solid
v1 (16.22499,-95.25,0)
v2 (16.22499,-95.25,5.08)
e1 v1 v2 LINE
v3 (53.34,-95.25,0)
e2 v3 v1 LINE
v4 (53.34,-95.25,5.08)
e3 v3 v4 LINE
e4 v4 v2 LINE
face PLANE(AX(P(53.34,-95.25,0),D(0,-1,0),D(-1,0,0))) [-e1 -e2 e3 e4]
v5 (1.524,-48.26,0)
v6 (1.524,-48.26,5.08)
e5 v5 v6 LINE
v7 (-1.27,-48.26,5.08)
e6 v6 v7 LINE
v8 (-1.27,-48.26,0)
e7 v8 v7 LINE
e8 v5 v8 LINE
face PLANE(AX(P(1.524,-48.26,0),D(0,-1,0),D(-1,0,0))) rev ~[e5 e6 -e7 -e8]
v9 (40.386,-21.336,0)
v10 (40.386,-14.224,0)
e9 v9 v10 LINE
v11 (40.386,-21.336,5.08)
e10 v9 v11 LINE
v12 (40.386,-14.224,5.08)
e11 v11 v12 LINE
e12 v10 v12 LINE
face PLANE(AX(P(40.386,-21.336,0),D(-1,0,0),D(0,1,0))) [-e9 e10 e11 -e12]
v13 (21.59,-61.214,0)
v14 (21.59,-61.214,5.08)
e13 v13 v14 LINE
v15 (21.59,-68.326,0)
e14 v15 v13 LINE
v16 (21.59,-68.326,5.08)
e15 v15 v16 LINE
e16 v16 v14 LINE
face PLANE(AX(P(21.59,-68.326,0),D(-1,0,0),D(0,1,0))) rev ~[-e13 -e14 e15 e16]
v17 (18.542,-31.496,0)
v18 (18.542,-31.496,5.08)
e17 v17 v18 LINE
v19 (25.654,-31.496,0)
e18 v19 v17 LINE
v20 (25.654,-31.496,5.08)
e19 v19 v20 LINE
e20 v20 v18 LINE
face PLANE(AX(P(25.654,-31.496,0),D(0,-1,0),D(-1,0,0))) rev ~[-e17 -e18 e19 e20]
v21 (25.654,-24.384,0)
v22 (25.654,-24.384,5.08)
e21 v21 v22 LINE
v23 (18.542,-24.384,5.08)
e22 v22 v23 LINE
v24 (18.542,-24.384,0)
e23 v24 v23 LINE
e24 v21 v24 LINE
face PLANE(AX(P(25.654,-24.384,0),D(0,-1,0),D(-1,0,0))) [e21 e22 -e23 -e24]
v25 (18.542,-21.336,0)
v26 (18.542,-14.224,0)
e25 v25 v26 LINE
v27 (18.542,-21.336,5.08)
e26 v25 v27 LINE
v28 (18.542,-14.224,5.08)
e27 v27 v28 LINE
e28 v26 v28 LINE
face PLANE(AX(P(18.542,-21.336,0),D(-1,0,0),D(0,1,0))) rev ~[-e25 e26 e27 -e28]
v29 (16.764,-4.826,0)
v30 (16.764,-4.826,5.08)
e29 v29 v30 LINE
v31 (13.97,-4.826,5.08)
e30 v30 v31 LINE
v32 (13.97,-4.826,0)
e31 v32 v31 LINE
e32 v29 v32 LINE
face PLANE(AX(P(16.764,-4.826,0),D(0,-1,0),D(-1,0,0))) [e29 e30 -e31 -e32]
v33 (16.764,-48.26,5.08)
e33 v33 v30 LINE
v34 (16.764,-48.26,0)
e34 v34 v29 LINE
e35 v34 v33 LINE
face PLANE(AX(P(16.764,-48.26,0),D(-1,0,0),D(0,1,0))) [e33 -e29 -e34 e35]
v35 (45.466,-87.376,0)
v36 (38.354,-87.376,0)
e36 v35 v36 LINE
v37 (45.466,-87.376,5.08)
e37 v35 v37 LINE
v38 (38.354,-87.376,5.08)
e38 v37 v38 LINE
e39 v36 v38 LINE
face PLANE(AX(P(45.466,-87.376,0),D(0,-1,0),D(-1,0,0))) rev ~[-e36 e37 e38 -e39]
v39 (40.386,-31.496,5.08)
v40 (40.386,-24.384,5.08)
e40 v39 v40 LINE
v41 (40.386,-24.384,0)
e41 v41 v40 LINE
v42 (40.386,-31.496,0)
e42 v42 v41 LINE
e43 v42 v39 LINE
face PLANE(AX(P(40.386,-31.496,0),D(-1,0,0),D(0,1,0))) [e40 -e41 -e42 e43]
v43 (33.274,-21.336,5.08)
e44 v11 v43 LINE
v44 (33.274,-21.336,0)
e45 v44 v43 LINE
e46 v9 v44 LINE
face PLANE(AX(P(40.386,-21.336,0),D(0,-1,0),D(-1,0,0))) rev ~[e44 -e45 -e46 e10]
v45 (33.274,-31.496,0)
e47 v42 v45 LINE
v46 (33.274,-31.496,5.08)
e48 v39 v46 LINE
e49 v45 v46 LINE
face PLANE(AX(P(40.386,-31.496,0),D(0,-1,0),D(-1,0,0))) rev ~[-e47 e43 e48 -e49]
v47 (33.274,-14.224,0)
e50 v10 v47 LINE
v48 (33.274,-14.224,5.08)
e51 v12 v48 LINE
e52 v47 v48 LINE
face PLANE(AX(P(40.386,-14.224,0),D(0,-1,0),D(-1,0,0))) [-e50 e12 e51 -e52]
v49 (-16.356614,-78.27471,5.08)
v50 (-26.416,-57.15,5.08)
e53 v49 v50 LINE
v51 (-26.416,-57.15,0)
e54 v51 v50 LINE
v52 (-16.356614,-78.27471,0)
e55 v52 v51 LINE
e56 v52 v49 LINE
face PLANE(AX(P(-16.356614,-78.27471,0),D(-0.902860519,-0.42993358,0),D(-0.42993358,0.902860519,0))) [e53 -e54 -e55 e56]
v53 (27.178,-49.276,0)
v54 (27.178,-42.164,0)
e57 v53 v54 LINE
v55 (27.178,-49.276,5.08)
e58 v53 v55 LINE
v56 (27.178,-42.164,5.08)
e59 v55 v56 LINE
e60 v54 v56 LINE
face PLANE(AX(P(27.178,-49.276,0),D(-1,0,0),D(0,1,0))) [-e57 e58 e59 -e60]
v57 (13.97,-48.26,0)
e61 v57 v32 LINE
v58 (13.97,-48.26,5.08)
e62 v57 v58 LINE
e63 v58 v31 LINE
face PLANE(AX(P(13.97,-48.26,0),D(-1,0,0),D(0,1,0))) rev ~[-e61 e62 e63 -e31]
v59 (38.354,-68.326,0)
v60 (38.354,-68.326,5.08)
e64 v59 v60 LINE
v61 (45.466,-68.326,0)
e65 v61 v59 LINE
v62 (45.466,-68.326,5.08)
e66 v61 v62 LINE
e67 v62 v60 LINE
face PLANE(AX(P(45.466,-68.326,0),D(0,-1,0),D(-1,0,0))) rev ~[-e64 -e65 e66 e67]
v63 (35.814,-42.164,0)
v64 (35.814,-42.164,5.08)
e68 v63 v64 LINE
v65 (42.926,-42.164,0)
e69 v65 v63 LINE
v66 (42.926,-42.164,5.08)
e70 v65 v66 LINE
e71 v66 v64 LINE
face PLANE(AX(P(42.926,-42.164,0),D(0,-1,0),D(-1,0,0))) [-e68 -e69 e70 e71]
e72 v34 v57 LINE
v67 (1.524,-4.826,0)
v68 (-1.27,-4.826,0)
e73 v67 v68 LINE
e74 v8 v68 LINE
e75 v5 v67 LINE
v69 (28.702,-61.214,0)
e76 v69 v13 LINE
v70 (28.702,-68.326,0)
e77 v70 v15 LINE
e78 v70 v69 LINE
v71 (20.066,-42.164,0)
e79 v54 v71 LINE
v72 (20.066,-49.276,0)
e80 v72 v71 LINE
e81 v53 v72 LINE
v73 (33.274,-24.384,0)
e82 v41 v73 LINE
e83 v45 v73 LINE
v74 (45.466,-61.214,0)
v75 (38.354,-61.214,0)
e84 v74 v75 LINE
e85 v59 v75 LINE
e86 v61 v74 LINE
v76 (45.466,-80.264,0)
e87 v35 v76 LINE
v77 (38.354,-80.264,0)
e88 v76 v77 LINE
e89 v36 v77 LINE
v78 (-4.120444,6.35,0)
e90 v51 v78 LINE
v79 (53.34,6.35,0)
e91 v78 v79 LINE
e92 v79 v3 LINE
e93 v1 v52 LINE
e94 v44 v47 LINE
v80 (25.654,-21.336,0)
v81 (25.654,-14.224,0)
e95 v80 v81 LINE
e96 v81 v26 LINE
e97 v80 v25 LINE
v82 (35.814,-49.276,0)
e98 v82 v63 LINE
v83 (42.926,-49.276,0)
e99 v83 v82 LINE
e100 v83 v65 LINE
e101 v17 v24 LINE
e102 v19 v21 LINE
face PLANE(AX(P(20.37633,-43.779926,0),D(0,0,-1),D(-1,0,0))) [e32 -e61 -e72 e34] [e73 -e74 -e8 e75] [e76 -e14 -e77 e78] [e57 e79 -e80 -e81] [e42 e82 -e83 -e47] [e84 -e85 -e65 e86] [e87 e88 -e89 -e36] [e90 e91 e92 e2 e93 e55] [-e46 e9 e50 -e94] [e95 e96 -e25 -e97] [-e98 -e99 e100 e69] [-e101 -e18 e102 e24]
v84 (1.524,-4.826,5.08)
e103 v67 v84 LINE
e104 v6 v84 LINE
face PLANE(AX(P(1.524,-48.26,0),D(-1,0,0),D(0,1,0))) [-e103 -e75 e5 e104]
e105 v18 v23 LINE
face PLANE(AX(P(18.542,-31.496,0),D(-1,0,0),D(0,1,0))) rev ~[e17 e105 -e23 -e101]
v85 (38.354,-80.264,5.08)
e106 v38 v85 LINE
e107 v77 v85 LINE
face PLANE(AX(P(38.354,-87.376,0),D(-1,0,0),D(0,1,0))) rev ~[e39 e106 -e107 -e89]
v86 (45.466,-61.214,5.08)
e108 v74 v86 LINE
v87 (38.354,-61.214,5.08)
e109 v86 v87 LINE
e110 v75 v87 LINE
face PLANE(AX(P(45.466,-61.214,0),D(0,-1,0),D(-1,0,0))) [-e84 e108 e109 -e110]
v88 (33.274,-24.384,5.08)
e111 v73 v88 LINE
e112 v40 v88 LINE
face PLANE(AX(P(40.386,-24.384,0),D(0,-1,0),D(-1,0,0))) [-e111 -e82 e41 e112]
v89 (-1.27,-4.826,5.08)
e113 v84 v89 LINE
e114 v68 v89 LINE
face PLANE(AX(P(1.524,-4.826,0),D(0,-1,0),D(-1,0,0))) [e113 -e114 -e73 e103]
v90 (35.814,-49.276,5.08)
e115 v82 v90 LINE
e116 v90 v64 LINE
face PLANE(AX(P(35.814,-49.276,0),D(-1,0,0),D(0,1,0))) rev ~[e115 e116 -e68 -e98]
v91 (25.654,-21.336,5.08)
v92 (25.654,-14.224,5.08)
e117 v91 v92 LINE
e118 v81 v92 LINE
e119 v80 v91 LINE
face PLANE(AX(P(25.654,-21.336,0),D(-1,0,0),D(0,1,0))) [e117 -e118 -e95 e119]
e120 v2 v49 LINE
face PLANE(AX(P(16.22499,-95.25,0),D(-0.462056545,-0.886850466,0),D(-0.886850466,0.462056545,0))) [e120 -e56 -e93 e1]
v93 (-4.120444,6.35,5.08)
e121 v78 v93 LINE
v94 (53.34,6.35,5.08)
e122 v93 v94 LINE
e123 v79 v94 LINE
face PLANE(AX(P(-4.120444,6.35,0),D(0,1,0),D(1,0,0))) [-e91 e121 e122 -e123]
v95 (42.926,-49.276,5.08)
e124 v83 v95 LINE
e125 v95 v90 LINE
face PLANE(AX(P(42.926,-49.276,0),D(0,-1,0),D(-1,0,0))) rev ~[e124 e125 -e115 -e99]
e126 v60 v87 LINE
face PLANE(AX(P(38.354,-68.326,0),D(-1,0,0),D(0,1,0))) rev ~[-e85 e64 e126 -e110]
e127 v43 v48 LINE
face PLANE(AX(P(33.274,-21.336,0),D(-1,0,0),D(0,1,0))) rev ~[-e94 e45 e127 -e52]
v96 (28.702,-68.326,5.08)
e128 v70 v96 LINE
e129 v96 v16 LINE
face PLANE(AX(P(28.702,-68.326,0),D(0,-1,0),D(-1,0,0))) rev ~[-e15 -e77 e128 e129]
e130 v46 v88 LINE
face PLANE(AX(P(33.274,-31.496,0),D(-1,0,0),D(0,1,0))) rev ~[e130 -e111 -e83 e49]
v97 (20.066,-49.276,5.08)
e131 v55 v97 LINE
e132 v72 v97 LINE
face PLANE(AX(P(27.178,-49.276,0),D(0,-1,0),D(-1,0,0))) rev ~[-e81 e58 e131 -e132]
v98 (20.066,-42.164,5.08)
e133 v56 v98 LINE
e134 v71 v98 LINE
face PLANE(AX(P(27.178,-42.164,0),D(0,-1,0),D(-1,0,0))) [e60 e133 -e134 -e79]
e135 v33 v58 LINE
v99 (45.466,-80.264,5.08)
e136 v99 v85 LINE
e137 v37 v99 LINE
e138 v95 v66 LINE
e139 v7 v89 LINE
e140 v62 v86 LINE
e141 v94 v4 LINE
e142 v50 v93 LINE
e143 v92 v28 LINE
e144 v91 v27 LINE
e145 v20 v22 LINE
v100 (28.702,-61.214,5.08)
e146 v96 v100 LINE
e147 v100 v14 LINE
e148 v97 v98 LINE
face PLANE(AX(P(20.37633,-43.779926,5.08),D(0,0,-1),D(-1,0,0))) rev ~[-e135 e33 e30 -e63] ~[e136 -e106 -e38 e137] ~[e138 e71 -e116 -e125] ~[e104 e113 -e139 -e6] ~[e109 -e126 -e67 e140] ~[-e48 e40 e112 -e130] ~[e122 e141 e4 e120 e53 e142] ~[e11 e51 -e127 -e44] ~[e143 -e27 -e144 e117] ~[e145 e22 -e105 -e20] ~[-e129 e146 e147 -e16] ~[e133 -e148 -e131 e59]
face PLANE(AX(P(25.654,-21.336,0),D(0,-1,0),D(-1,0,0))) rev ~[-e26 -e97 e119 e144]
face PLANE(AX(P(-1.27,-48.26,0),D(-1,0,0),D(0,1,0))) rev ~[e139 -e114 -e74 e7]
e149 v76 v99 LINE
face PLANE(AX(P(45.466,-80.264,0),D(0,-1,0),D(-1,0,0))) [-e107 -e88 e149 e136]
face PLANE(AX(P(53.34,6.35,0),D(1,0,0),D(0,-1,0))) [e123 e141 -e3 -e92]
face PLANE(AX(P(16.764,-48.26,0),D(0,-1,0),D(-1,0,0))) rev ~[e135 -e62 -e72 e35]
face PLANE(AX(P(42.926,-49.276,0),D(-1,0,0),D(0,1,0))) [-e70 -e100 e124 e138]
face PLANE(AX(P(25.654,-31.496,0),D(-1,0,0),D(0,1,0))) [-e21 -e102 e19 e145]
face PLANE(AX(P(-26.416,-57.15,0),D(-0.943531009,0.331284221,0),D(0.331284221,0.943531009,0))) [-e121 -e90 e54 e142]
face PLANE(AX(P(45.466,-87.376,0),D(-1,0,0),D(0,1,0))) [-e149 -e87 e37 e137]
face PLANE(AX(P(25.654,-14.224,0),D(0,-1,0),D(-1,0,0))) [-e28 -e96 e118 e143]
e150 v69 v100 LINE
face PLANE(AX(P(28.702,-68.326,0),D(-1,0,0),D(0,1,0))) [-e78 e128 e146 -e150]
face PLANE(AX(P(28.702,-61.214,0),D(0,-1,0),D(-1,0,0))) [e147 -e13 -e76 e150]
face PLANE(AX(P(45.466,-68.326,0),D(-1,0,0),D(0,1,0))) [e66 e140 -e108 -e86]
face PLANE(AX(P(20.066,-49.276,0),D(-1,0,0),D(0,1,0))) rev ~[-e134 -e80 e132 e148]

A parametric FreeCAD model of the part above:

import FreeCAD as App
import Part
import Sketcher
from FreeCAD import Vector
Q = App.Units.Quantity


def add_polygon(sketch, points):
    """Adds a closed chain of lines whose ends are joined by coincident constraints."""
    first, n = sketch.GeometryCount, len(points)
    for a, b in zip(points, points[1:] + points[:1]):
        sketch.addGeometry(Part.LineSegment(App.Vector(*a, 0), App.Vector(*b, 0)), False)
    for i in range(n):
        sketch.addConstraint(Sketcher.Constraint("Coincident", first + i, 2, first + (i + 1) % n, 1))

doc = App.newDocument("Part")
params = doc.addObject("Spreadsheet::Sheet", "Params")
for row, (alias, value) in enumerate([
    ("sketch1_height", "4 in"),
    ("pad1_length", "0.2 in"),
    ("sketch2_width", "0.28 in"),
    ("sketch2_width2", "0.11 in"),
    ("sketch2_height", "1.71 in"),
], start=1):
    params.set(f"A{row}", alias)
    params.set(f"B{row}", "=" + value)
    params.setAlias(f"B{row}", alias)

body = doc.addObject("PartDesign::Body", "Body")

# Sketch on XY plane
sketch1 = doc.addObject("Sketcher::SketchObject", "Sketch")
body.addObject(sketch1)
sketch1.AttachmentSupport = (doc.XY_Plane, [""])
sketch1.MapMode = "FlatFace"
add_polygon(sketch1, [(53, 6), (-4, 6), (-26, -57), (-16, -78), (16, -95), (53, -95)])  # lines 0-5
sketch1.addConstraint(Sketcher.Constraint("Horizontal", 0))
sketch1.addConstraint(Sketcher.Constraint("Horizontal", 4))
sketch1.addConstraint(Sketcher.Constraint("Vertical", 5))
sketch1.addConstraint(Sketcher.Constraint("DistanceY", 5, 1, 5, 2, Q("4 in")))
sketch1.addConstraint(Sketcher.Constraint("DistanceX", -1, 1, 4, 2, Q("2.1 in")))
sketch1.addConstraint(Sketcher.Constraint("DistanceY", 1, 2, 0, 2, Q("2.5 in")))
sketch1.addConstraint(Sketcher.Constraint("DistanceY", -1, 1, 0, 2, Q("0.25 in")))
sketch1.addConstraint(Sketcher.Constraint("DistanceX", 1, 2, -1, 1, Q("1.04 in")))
sketch1.addConstraint(Sketcher.Constraint("DistanceX", 4, 1, 4, 2, Q("37.11501 mm")))
sketch1.addConstraint(Sketcher.Constraint("DistanceX", 0, 2, 0, 1, Q("57.460444 mm")))
sketch1.addConstraint(Sketcher.Constraint("DistanceY", 2, 2, -1, 1, Q("78.27471 mm")))
sketch1.addConstraint(Sketcher.Constraint("DistanceX", 2, 2, 0, 2, Q("12.23617 mm")))
sketch1.setExpression("Constraints[9]", "Params.sketch1_height")
pad1 = doc.addObject("PartDesign::Pad", "Pad")
body.addObject(pad1)
pad1.Profile = sketch1
pad1.setExpression("Length", "Params.pad1_length")

# Sketch on XY plane
sketch2 = doc.addObject("Sketcher::SketchObject", "Sketch001")
body.addObject(sketch2)
sketch2.AttachmentSupport = (doc.XY_Plane, [""])
sketch2.MapMode = "FlatFace"
add_polygon(sketch2, [(40.4, -14.2), (40.4, -21.3), (33.3, -21.3), (33.3, -14.2)])  # lines 0-3
add_polygon(sketch2, [(42.9, -42.2), (42.9, -49.3), (35.8, -49.3), (35.8, -42.2)])  # lines 4-7
add_polygon(sketch2, [(40.4, -24.4), (40.4, -31.5), (33.3, -31.5), (33.3, -24.4)])  # lines 8-11
add_polygon(sketch2, [(45.5, -61.2), (45.5, -68.3), (38.4, -68.3), (38.4, -61.2)])  # lines 12-15
add_polygon(sketch2, [(45.5, -80.3), (45.5, -87.4), (38.4, -87.4), (38.4, -80.3)])  # lines 16-19
add_polygon(sketch2, [(25.7, -14.2), (25.7, -21.3), (18.5, -21.3), (18.5, -14.2)])  # lines 20-23
add_polygon(sketch2, [(25.7, -24.4), (25.7, -31.5), (18.5, -31.5), (18.5, -24.4)])  # lines 24-27
add_polygon(sketch2, [(27.2, -42.2), (27.2, -49.3), (20.1, -49.3), (20.1, -42.2)])  # lines 28-31
add_polygon(sketch2, [(28.7, -61.2), (28.7, -68.3), (21.6, -68.3), (21.6, -61.2)])  # lines 32-35
add_polygon(sketch2, [(16.8, -4.8), (16.8, -48.3), (14, -48.3), (14, -4.8)])  # lines 36-39
add_polygon(sketch2, [(1.5, -4.8), (1.5, -48.3), (-1.3, -48.3), (-1.3, -4.8)])  # lines 40-43
sketch2.addConstraint(Sketcher.Constraint("Vertical", 0))
sketch2.addConstraint(Sketcher.Constraint("Horizontal", 1))
sketch2.addConstraint(Sketcher.Constraint("Vertical", 2))
sketch2.addConstraint(Sketcher.Constraint("Horizontal", 3))
sketch2.addConstraint(Sketcher.Constraint("Vertical", 4))
sketch2.addConstraint(Sketcher.Constraint("Horizontal", 5))
sketch2.addConstraint(Sketcher.Constraint("Vertical", 6))
sketch2.addConstraint(Sketcher.Constraint("Horizontal", 7))
sketch2.addConstraint(Sketcher.Constraint("Vertical", 8))
sketch2.addConstraint(Sketcher.Constraint("Horizontal", 9))
sketch2.addConstraint(Sketcher.Constraint("Vertical", 10))
sketch2.addConstraint(Sketcher.Constraint("Horizontal", 11))
sketch2.addConstraint(Sketcher.Constraint("Vertical", 12))
sketch2.addConstraint(Sketcher.Constraint("Horizontal", 13))
sketch2.addConstraint(Sketcher.Constraint("Vertical", 14))
sketch2.addConstraint(Sketcher.Constraint("Horizontal", 15))
sketch2.addConstraint(Sketcher.Constraint("Vertical", 16))
sketch2.addConstraint(Sketcher.Constraint("Horizontal", 17))
sketch2.addConstraint(Sketcher.Constraint("Vertical", 18))
sketch2.addConstraint(Sketcher.Constraint("Horizontal", 19))
sketch2.addConstraint(Sketcher.Constraint("Vertical", 20))
sketch2.addConstraint(Sketcher.Constraint("Horizontal", 21))
sketch2.addConstraint(Sketcher.Constraint("Vertical", 22))
sketch2.addConstraint(Sketcher.Constraint("Horizontal", 23))
sketch2.addConstraint(Sketcher.Constraint("Vertical", 24))
sketch2.addConstraint(Sketcher.Constraint("Horizontal", 25))
sketch2.addConstraint(Sketcher.Constraint("Vertical", 26))
sketch2.addConstraint(Sketcher.Constraint("Horizontal", 27))
sketch2.addConstraint(Sketcher.Constraint("Vertical", 28))
sketch2.addConstraint(Sketcher.Constraint("Horizontal", 29))
sketch2.addConstraint(Sketcher.Constraint("Vertical", 30))
sketch2.addConstraint(Sketcher.Constraint("Horizontal", 31))
sketch2.addConstraint(Sketcher.Constraint("Vertical", 32))
sketch2.addConstraint(Sketcher.Constraint("Horizontal", 33))
sketch2.addConstraint(Sketcher.Constraint("Vertical", 34))
sketch2.addConstraint(Sketcher.Constraint("Horizontal", 35))
sketch2.addConstraint(Sketcher.Constraint("Vertical", 36))
sketch2.addConstraint(Sketcher.Constraint("Horizontal", 37))
sketch2.addConstraint(Sketcher.Constraint("Vertical", 38))
sketch2.addConstraint(Sketcher.Constraint("Horizontal", 39))
sketch2.addConstraint(Sketcher.Constraint("Vertical", 40))
sketch2.addConstraint(Sketcher.Constraint("Horizontal", 41))
sketch2.addConstraint(Sketcher.Constraint("Vertical", 42))
sketch2.addConstraint(Sketcher.Constraint("Horizontal", 43))
sketch2.addConstraint(Sketcher.Constraint("Horizontal", 1, 2, 20, 2))
sketch2.addConstraint(Sketcher.Constraint("Horizontal", 3, 2, 22, 2))
sketch2.addConstraint(Sketcher.Constraint("Horizontal", 9, 2, 24, 2))
sketch2.addConstraint(Sketcher.Constraint("Horizontal", 11, 2, 26, 2))
sketch2.addConstraint(Sketcher.Constraint("Horizontal", 5, 2, 28, 2))
sketch2.addConstraint(Sketcher.Constraint("Horizontal", 7, 2, 30, 2))
sketch2.addConstraint(Sketcher.Constraint("Horizontal", 13, 2, 32, 2))
sketch2.addConstraint(Sketcher.Constraint("Horizontal", 15, 2, 34, 2))
sketch2.addConstraint(Sketcher.Constraint("Horizontal", 37, 2, 40, 2))
sketch2.addConstraint(Sketcher.Constraint("Horizontal", 39, 2, 42, 2))
sketch2.addConstraint(Sketcher.Constraint("Vertical", 3, 2, 8, 2))
sketch2.addConstraint(Sketcher.Constraint("Vertical", 2, 2, 9, 2))
sketch2.addConstraint(Sketcher.Constraint("Vertical", 15, 2, 16, 2))
sketch2.addConstraint(Sketcher.Constraint("Vertical", 14, 2, 17, 2))
sketch2.addConstraint(Sketcher.Constraint("Vertical", 23, 2, 24, 2))
sketch2.addConstraint(Sketcher.Constraint("Vertical", 22, 2, 25, 2))
sketch2.addConstraint(Sketcher.Constraint("Equal", 3, 5))
sketch2.addConstraint(Sketcher.Constraint("Equal", 11, 13))
sketch2.addConstraint(Sketcher.Constraint("Equal", 19, 21))
sketch2.addConstraint(Sketcher.Constraint("Equal", 27, 29))
sketch2.addConstraint(Sketcher.Constraint("Equal", 31, 33))
sketch2.addConstraint(Sketcher.Constraint("Equal", 39, 41))
sketch2.addConstraint(Sketcher.Constraint("Equal", 35, 0))
sketch2.addConstraint(Sketcher.Constraint("Equal", 2, 4))
sketch2.addConstraint(Sketcher.Constraint("Equal", 6, 8))
sketch2.addConstraint(Sketcher.Constraint("Equal", 10, 12))
sketch2.addConstraint(Sketcher.Constraint("Equal", 14, 16))
sketch2.addConstraint(Sketcher.Constraint("DistanceX", 1, 2, 1, 1, Q("0.28 in")))
sketch2.addConstraint(Sketcher.Constraint("DistanceX", 37, 2, 37, 1, Q("0.11 in")))
sketch2.addConstraint(Sketcher.Constraint("DistanceY", 36, 2, 36, 1, Q("1.71 in")))
sketch2.addConstraint(Sketcher.Constraint("DistanceY", 36, 2, -1, 1, Q("1.9 in")))
sketch2.addConstraint(Sketcher.Constraint("DistanceX", 0, 2, 4, 2, Q("0.1 in")))
sketch2.addConstraint(Sketcher.Constraint("DistanceY", 4, 2, 0, 2, Q("1.1 in")))
sketch2.addConstraint(Sketcher.Constraint("DistanceY", 8, 2, 0, 2, Q("0.4 in")))
sketch2.addConstraint(Sketcher.Constraint("DistanceX", 4, 2, 12, 2, Q("0.1 in")))
sketch2.addConstraint(Sketcher.Constraint("DistanceY", 16, 2, 4, 2, Q("1.5 in")))
sketch2.addConstraint(Sketcher.Constraint("DistanceX", 20, 2, 1, 2, Q("0.3 in")))
sketch2.addConstraint(Sketcher.Constraint("DistanceX", 40, 2, 36, 2, Q("0.6 in")))
sketch2.addConstraint(Sketcher.Constraint("DistanceX", -1, 1, 0, 2, Q("1.59 in")))
sketch2.addConstraint(Sketcher.Constraint("DistanceY", 0, 2, -1, 1, Q("0.84 in")))
sketch2.addConstraint(Sketcher.Constraint("DistanceY", 12, 2, -1, 1, Q("2.69 in")))
sketch2.addConstraint(Sketcher.Constraint("DistanceX", -1, 1, 28, 2, Q("1.07 in")))
sketch2.addConstraint(Sketcher.Constraint("DistanceX", -1, 1, 32, 2, Q("1.13 in")))
sketch2.addConstraint(Sketcher.Constraint("DistanceX", -1, 1, 36, 2, Q("0.66 in")))
sketch2.setExpression("Constraints[115]", "Params.sketch2_width")
sketch2.setExpression("Constraints[116]", "Params.sketch2_width2")
sketch2.setExpression("Constraints[117]", "Params.sketch2_height")
pocket1 = doc.addObject("PartDesign::Pocket", "Pocket")
body.addObject(pocket1)
pocket1.Profile = sketch2
pocket1.Type = "ThroughAll"
pocket1.Reversed = True

doc.recompute()
